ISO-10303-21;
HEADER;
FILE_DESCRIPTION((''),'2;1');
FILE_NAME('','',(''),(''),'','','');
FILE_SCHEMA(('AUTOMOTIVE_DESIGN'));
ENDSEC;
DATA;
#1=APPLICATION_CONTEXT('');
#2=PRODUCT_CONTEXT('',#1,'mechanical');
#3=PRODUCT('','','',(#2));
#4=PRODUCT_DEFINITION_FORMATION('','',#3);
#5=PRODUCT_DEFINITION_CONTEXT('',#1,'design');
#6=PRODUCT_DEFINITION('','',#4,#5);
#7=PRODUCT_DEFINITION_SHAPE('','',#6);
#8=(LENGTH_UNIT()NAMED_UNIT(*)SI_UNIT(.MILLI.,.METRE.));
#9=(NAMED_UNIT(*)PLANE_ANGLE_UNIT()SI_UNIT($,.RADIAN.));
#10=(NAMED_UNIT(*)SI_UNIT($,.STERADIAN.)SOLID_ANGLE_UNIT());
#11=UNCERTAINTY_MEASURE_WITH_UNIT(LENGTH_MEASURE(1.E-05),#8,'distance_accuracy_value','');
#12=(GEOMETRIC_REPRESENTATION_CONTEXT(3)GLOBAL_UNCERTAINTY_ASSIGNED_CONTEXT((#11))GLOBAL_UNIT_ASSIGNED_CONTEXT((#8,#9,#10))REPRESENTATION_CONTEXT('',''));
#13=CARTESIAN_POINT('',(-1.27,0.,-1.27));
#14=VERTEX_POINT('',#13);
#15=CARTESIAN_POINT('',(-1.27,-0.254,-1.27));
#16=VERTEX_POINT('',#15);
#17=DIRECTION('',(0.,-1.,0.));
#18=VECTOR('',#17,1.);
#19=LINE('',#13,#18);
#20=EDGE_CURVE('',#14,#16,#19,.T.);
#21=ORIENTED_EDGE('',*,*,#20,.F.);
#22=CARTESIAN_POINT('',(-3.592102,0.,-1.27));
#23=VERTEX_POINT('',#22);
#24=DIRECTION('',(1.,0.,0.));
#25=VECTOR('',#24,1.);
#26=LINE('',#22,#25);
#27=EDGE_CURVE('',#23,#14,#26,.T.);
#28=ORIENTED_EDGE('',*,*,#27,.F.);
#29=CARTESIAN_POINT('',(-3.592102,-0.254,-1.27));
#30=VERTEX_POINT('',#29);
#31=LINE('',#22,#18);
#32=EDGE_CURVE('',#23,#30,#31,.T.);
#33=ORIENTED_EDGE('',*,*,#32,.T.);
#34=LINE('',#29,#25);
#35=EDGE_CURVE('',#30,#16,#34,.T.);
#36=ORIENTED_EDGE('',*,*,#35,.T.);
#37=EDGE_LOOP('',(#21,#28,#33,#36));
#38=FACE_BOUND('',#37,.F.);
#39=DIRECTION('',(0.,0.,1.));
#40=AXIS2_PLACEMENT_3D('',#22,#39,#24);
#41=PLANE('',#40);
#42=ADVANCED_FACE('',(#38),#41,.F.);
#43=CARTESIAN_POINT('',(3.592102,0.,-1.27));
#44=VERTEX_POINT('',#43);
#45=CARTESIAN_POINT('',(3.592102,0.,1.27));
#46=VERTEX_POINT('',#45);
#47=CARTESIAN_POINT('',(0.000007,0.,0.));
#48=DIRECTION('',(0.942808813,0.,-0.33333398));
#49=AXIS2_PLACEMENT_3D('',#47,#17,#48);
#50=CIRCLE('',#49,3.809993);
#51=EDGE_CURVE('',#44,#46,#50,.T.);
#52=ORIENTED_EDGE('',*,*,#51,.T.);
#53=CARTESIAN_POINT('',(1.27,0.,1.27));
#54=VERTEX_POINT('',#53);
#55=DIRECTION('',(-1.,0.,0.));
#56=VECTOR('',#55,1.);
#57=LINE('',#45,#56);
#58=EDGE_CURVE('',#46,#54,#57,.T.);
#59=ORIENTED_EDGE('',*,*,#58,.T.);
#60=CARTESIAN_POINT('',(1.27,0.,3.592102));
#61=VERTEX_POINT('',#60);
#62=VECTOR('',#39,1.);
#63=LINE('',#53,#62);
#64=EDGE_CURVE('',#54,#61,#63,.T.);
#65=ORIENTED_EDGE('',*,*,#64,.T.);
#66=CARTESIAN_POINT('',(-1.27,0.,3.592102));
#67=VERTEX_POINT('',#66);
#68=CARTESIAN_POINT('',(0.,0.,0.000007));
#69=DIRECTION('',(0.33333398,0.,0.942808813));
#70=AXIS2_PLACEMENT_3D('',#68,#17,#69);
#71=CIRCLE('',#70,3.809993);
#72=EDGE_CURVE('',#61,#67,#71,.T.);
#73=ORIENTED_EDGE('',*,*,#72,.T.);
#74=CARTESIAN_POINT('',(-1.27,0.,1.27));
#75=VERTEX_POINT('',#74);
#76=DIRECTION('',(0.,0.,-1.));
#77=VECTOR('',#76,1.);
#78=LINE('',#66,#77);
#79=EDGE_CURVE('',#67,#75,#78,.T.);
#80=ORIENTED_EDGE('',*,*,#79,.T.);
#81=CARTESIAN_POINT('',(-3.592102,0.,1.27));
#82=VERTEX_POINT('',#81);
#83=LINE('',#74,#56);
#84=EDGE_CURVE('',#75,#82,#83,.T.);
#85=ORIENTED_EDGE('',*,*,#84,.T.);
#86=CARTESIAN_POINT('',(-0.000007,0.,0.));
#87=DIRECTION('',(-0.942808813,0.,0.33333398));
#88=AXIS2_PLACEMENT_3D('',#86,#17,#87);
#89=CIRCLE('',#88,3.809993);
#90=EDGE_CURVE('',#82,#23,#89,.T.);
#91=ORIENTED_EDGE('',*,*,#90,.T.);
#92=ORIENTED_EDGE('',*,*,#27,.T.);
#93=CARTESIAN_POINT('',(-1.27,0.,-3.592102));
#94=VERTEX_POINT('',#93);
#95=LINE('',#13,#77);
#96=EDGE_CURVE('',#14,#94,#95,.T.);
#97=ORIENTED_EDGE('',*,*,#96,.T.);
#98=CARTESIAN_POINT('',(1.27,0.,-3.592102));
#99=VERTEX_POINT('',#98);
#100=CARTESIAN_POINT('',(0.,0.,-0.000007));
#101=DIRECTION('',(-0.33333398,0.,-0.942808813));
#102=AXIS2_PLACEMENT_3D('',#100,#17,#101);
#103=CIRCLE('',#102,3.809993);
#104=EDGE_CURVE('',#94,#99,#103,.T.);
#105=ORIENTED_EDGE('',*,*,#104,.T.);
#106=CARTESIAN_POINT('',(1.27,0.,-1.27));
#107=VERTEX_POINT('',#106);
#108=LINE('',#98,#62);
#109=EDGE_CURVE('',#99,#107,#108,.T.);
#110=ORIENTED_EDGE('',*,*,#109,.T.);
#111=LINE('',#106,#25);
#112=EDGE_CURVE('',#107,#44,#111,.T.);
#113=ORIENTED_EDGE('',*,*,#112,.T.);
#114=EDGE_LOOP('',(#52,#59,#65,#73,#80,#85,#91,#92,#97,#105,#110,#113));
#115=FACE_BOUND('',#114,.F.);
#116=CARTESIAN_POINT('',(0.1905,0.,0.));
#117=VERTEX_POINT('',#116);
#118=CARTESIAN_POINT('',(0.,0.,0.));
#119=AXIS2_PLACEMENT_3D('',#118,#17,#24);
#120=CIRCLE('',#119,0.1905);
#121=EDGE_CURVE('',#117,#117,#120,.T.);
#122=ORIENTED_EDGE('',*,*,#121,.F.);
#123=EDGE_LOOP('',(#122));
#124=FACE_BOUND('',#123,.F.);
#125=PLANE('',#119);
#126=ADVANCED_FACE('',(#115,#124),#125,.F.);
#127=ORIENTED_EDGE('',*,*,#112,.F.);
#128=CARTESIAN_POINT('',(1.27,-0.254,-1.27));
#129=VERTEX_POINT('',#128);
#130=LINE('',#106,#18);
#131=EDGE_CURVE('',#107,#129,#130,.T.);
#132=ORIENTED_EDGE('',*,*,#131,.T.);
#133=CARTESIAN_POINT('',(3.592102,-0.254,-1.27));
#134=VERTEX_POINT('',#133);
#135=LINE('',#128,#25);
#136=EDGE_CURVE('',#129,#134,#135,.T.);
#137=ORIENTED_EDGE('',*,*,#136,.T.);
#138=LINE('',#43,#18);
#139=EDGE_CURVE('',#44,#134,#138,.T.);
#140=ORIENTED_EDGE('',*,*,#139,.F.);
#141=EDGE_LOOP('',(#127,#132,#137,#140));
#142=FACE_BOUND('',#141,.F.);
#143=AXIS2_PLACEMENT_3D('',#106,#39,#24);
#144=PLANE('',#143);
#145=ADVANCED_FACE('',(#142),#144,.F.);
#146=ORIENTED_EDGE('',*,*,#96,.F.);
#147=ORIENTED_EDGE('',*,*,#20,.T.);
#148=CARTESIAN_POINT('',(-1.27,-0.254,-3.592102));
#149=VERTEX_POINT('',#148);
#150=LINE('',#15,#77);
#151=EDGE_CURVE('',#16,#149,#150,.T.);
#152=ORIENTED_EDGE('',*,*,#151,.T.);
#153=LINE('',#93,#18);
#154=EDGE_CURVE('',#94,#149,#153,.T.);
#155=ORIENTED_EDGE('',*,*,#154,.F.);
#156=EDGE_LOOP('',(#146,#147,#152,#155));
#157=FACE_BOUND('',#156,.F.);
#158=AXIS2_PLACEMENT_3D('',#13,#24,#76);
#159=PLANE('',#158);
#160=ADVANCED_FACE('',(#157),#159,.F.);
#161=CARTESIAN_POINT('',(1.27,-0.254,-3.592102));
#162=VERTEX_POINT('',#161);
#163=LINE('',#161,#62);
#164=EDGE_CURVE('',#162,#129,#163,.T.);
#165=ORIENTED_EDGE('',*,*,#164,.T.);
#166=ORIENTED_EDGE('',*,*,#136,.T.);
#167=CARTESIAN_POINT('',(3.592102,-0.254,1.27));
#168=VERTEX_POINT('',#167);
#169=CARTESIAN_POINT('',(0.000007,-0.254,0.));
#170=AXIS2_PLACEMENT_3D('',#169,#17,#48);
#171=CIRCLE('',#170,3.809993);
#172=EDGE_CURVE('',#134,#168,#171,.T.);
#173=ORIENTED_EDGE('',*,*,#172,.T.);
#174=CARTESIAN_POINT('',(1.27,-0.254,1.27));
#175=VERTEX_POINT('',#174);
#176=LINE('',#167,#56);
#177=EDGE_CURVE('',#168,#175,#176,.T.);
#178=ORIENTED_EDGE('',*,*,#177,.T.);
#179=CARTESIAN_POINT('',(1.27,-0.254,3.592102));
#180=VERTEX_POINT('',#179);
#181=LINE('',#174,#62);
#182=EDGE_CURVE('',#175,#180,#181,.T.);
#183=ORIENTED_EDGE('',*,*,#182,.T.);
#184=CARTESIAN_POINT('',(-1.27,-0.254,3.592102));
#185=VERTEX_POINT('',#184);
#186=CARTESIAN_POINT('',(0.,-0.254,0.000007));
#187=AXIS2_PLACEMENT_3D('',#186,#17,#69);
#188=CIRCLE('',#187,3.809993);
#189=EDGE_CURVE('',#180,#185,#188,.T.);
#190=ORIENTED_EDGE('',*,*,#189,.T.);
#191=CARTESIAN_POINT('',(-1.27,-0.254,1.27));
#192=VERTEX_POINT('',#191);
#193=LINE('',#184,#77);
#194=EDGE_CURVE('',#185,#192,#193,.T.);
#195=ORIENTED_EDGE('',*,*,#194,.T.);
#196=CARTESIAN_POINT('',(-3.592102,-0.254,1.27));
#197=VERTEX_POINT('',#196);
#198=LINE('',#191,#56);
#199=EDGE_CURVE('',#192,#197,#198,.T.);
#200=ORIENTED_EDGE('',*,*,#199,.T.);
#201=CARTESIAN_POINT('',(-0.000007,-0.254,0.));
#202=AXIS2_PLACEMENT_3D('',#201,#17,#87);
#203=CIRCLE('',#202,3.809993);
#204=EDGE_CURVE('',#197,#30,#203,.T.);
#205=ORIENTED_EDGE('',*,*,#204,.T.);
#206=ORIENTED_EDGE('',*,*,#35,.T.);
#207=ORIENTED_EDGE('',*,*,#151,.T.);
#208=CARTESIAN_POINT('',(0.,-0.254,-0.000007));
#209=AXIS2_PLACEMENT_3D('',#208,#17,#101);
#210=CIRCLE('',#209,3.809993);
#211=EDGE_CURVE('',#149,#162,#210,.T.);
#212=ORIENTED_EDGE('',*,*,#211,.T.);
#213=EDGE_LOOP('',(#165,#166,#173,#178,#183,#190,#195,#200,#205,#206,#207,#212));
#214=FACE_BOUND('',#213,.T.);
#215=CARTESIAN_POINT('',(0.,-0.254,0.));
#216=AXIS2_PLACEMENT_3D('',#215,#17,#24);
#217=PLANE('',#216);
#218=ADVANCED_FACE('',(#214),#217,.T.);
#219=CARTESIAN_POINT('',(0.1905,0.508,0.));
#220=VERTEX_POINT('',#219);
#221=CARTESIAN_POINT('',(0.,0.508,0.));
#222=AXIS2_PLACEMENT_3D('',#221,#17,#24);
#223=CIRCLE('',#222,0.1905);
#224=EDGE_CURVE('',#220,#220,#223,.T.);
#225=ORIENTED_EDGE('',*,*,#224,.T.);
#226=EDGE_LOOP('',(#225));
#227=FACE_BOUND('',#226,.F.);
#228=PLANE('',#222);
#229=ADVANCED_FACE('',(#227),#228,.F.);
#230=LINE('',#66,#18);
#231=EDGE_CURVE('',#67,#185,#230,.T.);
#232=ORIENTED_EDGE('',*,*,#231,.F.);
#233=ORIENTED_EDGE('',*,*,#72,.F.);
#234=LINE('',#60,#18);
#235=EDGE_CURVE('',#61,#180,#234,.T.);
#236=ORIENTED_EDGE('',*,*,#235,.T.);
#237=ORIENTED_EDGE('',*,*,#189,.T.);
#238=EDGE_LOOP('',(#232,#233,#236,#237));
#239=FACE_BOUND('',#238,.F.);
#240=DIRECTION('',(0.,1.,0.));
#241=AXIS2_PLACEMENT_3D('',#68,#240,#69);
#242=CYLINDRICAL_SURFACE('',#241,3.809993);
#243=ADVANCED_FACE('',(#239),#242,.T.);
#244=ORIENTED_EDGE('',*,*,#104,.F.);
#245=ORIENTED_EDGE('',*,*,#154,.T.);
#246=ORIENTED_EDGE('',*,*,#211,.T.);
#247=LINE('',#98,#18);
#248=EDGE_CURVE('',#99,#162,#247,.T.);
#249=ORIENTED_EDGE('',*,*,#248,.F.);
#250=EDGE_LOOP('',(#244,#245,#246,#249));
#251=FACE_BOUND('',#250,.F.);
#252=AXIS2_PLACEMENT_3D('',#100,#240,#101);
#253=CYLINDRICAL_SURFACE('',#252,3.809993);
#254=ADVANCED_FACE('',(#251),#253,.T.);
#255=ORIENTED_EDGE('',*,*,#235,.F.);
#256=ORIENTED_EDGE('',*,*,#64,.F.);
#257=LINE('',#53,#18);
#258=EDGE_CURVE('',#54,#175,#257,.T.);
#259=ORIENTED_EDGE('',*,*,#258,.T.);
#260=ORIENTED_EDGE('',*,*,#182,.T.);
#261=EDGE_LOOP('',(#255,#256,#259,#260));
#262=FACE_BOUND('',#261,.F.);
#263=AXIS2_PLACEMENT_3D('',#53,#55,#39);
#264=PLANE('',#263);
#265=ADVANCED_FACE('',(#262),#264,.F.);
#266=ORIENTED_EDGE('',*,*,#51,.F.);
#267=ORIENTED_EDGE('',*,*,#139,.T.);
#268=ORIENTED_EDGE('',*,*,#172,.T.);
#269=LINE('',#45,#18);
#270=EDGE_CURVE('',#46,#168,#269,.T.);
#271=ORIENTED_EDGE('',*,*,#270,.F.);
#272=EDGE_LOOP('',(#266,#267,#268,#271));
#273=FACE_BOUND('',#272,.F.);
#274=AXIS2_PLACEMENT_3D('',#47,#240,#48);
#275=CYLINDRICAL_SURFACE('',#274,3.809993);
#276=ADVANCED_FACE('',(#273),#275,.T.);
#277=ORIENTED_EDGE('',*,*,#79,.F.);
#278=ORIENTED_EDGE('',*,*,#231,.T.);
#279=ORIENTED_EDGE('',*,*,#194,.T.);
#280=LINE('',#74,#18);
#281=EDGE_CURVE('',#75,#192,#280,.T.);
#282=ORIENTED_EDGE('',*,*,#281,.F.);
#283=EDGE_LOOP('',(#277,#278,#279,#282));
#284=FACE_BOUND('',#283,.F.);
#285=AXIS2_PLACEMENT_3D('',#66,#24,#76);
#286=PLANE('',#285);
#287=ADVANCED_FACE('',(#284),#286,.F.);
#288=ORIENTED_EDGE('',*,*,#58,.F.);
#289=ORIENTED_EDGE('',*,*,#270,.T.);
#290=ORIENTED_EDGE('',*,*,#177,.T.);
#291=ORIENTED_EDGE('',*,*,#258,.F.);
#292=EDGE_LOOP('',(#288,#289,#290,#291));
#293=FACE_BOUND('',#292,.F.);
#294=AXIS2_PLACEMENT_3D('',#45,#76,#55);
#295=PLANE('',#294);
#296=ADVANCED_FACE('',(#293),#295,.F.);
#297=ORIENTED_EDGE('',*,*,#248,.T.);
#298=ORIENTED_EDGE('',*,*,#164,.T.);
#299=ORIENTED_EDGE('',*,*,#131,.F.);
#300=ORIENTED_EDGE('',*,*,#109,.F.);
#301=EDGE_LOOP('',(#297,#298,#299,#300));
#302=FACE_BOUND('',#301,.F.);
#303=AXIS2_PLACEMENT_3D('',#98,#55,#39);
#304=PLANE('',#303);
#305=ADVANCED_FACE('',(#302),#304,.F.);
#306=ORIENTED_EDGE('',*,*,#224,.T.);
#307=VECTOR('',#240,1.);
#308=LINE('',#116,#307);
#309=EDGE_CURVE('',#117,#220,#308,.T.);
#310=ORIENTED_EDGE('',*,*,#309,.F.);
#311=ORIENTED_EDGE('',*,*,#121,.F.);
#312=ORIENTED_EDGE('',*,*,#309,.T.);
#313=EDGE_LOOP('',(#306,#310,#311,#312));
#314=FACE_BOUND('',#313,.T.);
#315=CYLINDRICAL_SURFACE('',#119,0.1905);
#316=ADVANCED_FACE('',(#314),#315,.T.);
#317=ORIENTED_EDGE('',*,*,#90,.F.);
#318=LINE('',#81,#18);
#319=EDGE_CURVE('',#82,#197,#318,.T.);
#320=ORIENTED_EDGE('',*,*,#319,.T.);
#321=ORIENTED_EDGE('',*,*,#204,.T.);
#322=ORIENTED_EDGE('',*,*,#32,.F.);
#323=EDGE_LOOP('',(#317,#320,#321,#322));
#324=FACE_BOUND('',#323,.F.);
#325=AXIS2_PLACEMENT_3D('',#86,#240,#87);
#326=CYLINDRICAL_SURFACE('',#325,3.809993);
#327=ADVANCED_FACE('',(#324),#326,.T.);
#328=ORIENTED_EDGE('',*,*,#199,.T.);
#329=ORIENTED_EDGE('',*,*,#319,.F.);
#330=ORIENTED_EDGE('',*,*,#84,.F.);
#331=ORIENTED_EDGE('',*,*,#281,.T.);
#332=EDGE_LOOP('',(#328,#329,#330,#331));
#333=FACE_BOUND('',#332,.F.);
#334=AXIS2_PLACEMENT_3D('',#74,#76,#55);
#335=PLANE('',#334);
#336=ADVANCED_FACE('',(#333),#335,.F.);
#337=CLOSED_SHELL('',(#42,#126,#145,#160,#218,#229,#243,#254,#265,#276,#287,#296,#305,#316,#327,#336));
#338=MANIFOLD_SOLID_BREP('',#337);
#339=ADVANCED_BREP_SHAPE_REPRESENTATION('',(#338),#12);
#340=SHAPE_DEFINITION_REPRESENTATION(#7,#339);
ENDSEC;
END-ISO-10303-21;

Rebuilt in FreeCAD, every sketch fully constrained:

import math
import FreeCAD as App
import Part
import Sketcher
Q = App.Units.Quantity

doc = App.newDocument("Part")
body = doc.addObject("PartDesign::Body", "Body")

# Sketch on XZ plane
sketch1 = body.newObject("Sketcher::SketchObject", "Sketch")
sketch1.AttachmentSupport = (doc.getObject("XZ_Plane"), [""])
sketch1.MapMode = "FlatFace"
sketch1.addGeometry(Part.LineSegment(App.Vector(-1.3, 1.3, 0), App.Vector(-3.6, 1.3, 0)), False)
sketch1.addGeometry(Part.ArcOfCircle(Part.Circle(App.Vector(0, 0, 0), App.Vector(0, 0, 1), 3.8), math.radians(161), math.radians(199)), False)
sketch1.addGeometry(Part.LineSegment(App.Vector(-3.6, -1.3, 0), App.Vector(-1.3, -1.3, 0)), False)
sketch1.addGeometry(Part.LineSegment(App.Vector(-1.3, -1.3, 0), App.Vector(-1.3, -3.6, 0)), False)
sketch1.addGeometry(Part.ArcOfCircle(Part.Circle(App.Vector(0, 0, 0), App.Vector(0, 0, 1), 3.8), math.radians(-109), math.radians(-71)), False)
sketch1.addGeometry(Part.LineSegment(App.Vector(1.3, -3.6, 0), App.Vector(1.3, -1.3, 0)), False)
sketch1.addGeometry(Part.LineSegment(App.Vector(1.3, -1.3, 0), App.Vector(3.6, -1.3, 0)), False)
sketch1.addGeometry(Part.ArcOfCircle(Part.Circle(App.Vector(0, 0, 0), App.Vector(0, 0, 1), 3.8), math.radians(-19), math.radians(19)), False)
sketch1.addGeometry(Part.LineSegment(App.Vector(3.6, 1.3, 0), App.Vector(1.3, 1.3, 0)), False)
sketch1.addGeometry(Part.LineSegment(App.Vector(1.3, 1.3, 0), App.Vector(1.3, 3.6, 0)), False)
sketch1.addGeometry(Part.ArcOfCircle(Part.Circle(App.Vector(0, 0, 0), App.Vector(0, 0, 1), 3.8), math.radians(71), math.radians(109)), False)
sketch1.addGeometry(Part.LineSegment(App.Vector(-1.3, 3.6, 0), App.Vector(-1.3, 1.3, 0)), False)
sketch1.addConstraint(Sketcher.Constraint("Coincident", 0, 2, 1, 1))
sketch1.addConstraint(Sketcher.Constraint("Coincident", 1, 2, 2, 1))
sketch1.addConstraint(Sketcher.Constraint("Coincident", 2, 2, 3, 1))
sketch1.addConstraint(Sketcher.Constraint("Coincident", 3, 2, 4, 1))
sketch1.addConstraint(Sketcher.Constraint("Coincident", 4, 2, 5, 1))
sketch1.addConstraint(Sketcher.Constraint("Coincident", 5, 2, 6, 1))
sketch1.addConstraint(Sketcher.Constraint("Coincident", 6, 2, 7, 1))
sketch1.addConstraint(Sketcher.Constraint("Coincident", 7, 2, 8, 1))
sketch1.addConstraint(Sketcher.Constraint("Coincident", 8, 2, 9, 1))
sketch1.addConstraint(Sketcher.Constraint("Coincident", 9, 2, 10, 1))
sketch1.addConstraint(Sketcher.Constraint("Coincident", 10, 2, 11, 1))
sketch1.addConstraint(Sketcher.Constraint("Coincident", 11, 2, 0, 1))
sketch1.addConstraint(Sketcher.Constraint("Horizontal", 0))
sketch1.addConstraint(Sketcher.Constraint("Horizontal", 2))
sketch1.addConstraint(Sketcher.Constraint("Vertical", 3))
sketch1.addConstraint(Sketcher.Constraint("Vertical", 5))
sketch1.addConstraint(Sketcher.Constraint("Horizontal", 6))
sketch1.addConstraint(Sketcher.Constraint("Horizontal", 8))
sketch1.addConstraint(Sketcher.Constraint("Vertical", 9))
sketch1.addConstraint(Sketcher.Constraint("Vertical", 11))
sketch1.addConstraint(Sketcher.Constraint("Coincident", 1, 3, -1, 1))
sketch1.addConstraint(Sketcher.Constraint("Coincident", 4, 3, -1, 1))
sketch1.addConstraint(Sketcher.Constraint("Coincident", 7, 3, -1, 1))
sketch1.addConstraint(Sketcher.Constraint("Coincident", 10, 3, -1, 1))
sketch1.addConstraint(Sketcher.Constraint("Equal", 1, 4))
sketch1.addConstraint(Sketcher.Constraint("Equal", 4, 7))
sketch1.addConstraint(Sketcher.Constraint("Equal", 7, 10))
sketch1.addConstraint(Sketcher.Constraint("Symmetric", 2, 2, 8, 2, -1, 1))
sketch1.addConstraint(Sketcher.Constraint("Symmetric", 5, 2, 11, 2, -1, 1))
sketch1.addConstraint(Sketcher.Constraint("Symmetric", 2, 2, 5, 2, -2))
sketch1.addConstraint(Sketcher.Constraint("Equal", 8, 3))
sketch1.addConstraint(Sketcher.Constraint("DistanceY", 1, 2, 0, 2, Q("0.1 in")))
sketch1.addConstraint(Sketcher.Constraint("Radius", 1, Q("3.809993 mm")))
pad1 = body.newObject("PartDesign::Pad", "Pad")
pad1.Profile = sketch1
pad1.Length = Q("0.01 in")

# Sketch on XZ plane
sketch2 = body.newObject("Sketcher::SketchObject", "Sketch001")
sketch2.AttachmentSupport = (doc.getObject("XZ_Plane"), [""])
sketch2.MapMode = "FlatFace"
sketch2.addGeometry(Part.Circle(App.Vector(0, 0, 0), App.Vector(0, 0, 1), 0.19), False)
sketch2.addConstraint(Sketcher.Constraint("Coincident", 0, 3, -1, 1))
sketch2.addConstraint(Sketcher.Constraint("Diameter", 0, Q("0.015 in")))
pad2 = body.newObject("PartDesign::Pad", "Pad001")
pad2.Profile = sketch2
pad2.Length = Q("0.02 in")
pad2.Reversed = True

doc.recompute()
